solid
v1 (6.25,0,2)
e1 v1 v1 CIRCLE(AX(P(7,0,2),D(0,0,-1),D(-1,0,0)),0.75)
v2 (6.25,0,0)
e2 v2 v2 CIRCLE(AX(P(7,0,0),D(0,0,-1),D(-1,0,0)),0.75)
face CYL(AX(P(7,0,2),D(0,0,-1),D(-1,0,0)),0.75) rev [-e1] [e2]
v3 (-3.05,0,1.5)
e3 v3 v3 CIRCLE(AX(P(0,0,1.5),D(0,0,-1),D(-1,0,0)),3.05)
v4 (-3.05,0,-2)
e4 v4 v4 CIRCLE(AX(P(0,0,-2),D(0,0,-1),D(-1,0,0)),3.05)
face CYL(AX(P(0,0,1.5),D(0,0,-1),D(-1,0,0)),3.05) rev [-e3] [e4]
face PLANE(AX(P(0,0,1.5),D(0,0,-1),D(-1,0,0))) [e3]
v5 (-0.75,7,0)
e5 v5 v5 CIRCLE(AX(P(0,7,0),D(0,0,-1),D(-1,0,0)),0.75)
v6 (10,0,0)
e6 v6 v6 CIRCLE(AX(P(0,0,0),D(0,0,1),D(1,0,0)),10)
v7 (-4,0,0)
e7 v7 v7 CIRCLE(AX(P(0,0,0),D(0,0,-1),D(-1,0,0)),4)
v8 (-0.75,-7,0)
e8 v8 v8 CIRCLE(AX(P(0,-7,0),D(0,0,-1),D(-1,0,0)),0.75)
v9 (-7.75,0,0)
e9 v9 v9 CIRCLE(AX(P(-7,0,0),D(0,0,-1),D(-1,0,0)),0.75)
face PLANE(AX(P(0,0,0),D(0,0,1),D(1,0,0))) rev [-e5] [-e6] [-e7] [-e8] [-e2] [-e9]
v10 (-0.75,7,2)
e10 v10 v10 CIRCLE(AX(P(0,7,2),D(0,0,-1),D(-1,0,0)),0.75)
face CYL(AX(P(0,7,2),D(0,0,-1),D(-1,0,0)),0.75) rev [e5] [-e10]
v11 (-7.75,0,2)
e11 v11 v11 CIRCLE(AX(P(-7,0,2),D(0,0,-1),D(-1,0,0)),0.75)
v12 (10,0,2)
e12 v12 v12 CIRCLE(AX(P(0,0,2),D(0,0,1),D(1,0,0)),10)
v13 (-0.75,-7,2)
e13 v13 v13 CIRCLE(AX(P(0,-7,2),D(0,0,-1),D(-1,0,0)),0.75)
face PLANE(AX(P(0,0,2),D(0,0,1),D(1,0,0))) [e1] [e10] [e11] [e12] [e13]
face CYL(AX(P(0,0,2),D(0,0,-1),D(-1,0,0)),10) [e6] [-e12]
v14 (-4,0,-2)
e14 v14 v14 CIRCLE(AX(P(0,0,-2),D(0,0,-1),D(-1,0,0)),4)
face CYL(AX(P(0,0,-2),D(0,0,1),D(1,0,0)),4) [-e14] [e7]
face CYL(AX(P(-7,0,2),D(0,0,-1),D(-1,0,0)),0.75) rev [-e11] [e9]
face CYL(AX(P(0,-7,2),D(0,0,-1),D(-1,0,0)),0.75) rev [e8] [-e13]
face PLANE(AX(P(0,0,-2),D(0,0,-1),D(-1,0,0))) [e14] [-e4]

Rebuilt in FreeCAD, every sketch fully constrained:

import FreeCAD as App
import Part
import Sketcher
Q = App.Units.Quantity

doc = App.newDocument("Part")
body = doc.addObject("PartDesign::Body", "Body")

sketch1 = body.newObject("Sketcher::SketchObject", "Sketch")
sketch1.AttachmentSupport = (doc.getObject("XY_Plane"), [""])
sketch1.MapMode = "FlatFace"
sketch1.addGeometry(Part.Circle(App.Vector(0, 0, 0), App.Vector(0, 0, 1), 10), False)
sketch1.addConstraint(Sketcher.Constraint("Coincident", 0, 3, -1, 1))
sketch1.addConstraint(Sketcher.Constraint("Diameter", 0, Q("20 mm")))
pad1 = body.newObject("PartDesign::Pad", "Pad")
pad1.Profile = sketch1
pad1.Length = 2

sketch2 = body.newObject("Sketcher::SketchObject", "Sketch001")
sketch2.AttachmentSupport = (doc.getObject("XY_Plane"), [""])
sketch2.MapMode = "FlatFace"
sketch2.addGeometry(Part.Circle(App.Vector(0, 0, 0), App.Vector(0, 0, 1), 4), False)
sketch2.addConstraint(Sketcher.Constraint("Coincident", 0, 3, -1, 1))
sketch2.addConstraint(Sketcher.Constraint("Diameter", 0, Q("8 mm")))
pad2 = body.newObject("PartDesign::Pad", "Pad001")
pad2.Profile = sketch2
pad2.Length = 2
pad2.Reversed = True

sketch3 = body.newObject("Sketcher::SketchObject", "Sketch002")
sketch3.AttachmentSupport = (doc.getObject("XY_Plane"), [""])
sketch3.MapMode = "FlatFace"
sketch3.AttachmentOffset = App.Placement(App.Vector(0, 0, -2), App.Rotation())
sketch3.addGeometry(Part.Circle(App.Vector(0, 0, 0), App.Vector(0, 0, 1), 3.05), False)
sketch3.addConstraint(Sketcher.Constraint("Coincident", 0, 3, -1, 1))
sketch3.addConstraint(Sketcher.Constraint("Diameter", 0, Q("6.1 mm")))
pocket1 = body.newObject("PartDesign::Pocket", "Pocket")
pocket1.Profile = sketch3
pocket1.Length = 3.5
pocket1.Reversed = True

sketch4 = body.newObject("Sketcher::SketchObject", "Sketch003")
sketch4.AttachmentSupport = (doc.getObject("XY_Plane"), [""])
sketch4.MapMode = "FlatFace"
sketch4.addGeometry(Part.Circle(App.Vector(0, 7, 0), App.Vector(0, 0, 1), 0.75), False)
sketch4.addGeometry(Part.Circle(App.Vector(-7, 0, 0), App.Vector(0, 0, 1), 0.75), False)
sketch4.addGeometry(Part.Circle(App.Vector(0, -7, 0), App.Vector(0, 0, 1), 0.75), False)
sketch4.addGeometry(Part.Circle(App.Vector(7, 0, 0), App.Vector(0, 0, 1), 0.75), False)
sketch4.addConstraint(Sketcher.Constraint("Equal", 0, 1))
sketch4.addConstraint(Sketcher.Constraint("Equal", 1, 2))
sketch4.addConstraint(Sketcher.Constraint("Equal", 2, 3))
sketch4.addConstraint(Sketcher.Constraint("Symmetric", 0, 3, 2, 3, -1, 1))
sketch4.addConstraint(Sketcher.Constraint("Symmetric", 1, 3, 3, 3, -1, 1))
sketch4.addConstraint(Sketcher.Constraint("PointOnObject", 0, 3, -2))
sketch4.addConstraint(Sketcher.Constraint("PointOnObject", 1, 3, -1))
sketch4.addConstraint(Sketcher.Constraint("Diameter", 0, Q("1.5 mm")))
sketch4.addConstraint(Sketcher.Constraint("DistanceY", -1, 1, 0, 3, Q("7 mm")))
sketch4.addConstraint(Sketcher.Constraint("DistanceX", 1, 3, -1, 1, Q("7 mm")))
pocket2 = body.newObject("PartDesign::Pocket", "Pocket001")
pocket2.Profile = sketch4
pocket2.Type = "ThroughAll"
pocket2.Reversed = True

doc.recompute()
